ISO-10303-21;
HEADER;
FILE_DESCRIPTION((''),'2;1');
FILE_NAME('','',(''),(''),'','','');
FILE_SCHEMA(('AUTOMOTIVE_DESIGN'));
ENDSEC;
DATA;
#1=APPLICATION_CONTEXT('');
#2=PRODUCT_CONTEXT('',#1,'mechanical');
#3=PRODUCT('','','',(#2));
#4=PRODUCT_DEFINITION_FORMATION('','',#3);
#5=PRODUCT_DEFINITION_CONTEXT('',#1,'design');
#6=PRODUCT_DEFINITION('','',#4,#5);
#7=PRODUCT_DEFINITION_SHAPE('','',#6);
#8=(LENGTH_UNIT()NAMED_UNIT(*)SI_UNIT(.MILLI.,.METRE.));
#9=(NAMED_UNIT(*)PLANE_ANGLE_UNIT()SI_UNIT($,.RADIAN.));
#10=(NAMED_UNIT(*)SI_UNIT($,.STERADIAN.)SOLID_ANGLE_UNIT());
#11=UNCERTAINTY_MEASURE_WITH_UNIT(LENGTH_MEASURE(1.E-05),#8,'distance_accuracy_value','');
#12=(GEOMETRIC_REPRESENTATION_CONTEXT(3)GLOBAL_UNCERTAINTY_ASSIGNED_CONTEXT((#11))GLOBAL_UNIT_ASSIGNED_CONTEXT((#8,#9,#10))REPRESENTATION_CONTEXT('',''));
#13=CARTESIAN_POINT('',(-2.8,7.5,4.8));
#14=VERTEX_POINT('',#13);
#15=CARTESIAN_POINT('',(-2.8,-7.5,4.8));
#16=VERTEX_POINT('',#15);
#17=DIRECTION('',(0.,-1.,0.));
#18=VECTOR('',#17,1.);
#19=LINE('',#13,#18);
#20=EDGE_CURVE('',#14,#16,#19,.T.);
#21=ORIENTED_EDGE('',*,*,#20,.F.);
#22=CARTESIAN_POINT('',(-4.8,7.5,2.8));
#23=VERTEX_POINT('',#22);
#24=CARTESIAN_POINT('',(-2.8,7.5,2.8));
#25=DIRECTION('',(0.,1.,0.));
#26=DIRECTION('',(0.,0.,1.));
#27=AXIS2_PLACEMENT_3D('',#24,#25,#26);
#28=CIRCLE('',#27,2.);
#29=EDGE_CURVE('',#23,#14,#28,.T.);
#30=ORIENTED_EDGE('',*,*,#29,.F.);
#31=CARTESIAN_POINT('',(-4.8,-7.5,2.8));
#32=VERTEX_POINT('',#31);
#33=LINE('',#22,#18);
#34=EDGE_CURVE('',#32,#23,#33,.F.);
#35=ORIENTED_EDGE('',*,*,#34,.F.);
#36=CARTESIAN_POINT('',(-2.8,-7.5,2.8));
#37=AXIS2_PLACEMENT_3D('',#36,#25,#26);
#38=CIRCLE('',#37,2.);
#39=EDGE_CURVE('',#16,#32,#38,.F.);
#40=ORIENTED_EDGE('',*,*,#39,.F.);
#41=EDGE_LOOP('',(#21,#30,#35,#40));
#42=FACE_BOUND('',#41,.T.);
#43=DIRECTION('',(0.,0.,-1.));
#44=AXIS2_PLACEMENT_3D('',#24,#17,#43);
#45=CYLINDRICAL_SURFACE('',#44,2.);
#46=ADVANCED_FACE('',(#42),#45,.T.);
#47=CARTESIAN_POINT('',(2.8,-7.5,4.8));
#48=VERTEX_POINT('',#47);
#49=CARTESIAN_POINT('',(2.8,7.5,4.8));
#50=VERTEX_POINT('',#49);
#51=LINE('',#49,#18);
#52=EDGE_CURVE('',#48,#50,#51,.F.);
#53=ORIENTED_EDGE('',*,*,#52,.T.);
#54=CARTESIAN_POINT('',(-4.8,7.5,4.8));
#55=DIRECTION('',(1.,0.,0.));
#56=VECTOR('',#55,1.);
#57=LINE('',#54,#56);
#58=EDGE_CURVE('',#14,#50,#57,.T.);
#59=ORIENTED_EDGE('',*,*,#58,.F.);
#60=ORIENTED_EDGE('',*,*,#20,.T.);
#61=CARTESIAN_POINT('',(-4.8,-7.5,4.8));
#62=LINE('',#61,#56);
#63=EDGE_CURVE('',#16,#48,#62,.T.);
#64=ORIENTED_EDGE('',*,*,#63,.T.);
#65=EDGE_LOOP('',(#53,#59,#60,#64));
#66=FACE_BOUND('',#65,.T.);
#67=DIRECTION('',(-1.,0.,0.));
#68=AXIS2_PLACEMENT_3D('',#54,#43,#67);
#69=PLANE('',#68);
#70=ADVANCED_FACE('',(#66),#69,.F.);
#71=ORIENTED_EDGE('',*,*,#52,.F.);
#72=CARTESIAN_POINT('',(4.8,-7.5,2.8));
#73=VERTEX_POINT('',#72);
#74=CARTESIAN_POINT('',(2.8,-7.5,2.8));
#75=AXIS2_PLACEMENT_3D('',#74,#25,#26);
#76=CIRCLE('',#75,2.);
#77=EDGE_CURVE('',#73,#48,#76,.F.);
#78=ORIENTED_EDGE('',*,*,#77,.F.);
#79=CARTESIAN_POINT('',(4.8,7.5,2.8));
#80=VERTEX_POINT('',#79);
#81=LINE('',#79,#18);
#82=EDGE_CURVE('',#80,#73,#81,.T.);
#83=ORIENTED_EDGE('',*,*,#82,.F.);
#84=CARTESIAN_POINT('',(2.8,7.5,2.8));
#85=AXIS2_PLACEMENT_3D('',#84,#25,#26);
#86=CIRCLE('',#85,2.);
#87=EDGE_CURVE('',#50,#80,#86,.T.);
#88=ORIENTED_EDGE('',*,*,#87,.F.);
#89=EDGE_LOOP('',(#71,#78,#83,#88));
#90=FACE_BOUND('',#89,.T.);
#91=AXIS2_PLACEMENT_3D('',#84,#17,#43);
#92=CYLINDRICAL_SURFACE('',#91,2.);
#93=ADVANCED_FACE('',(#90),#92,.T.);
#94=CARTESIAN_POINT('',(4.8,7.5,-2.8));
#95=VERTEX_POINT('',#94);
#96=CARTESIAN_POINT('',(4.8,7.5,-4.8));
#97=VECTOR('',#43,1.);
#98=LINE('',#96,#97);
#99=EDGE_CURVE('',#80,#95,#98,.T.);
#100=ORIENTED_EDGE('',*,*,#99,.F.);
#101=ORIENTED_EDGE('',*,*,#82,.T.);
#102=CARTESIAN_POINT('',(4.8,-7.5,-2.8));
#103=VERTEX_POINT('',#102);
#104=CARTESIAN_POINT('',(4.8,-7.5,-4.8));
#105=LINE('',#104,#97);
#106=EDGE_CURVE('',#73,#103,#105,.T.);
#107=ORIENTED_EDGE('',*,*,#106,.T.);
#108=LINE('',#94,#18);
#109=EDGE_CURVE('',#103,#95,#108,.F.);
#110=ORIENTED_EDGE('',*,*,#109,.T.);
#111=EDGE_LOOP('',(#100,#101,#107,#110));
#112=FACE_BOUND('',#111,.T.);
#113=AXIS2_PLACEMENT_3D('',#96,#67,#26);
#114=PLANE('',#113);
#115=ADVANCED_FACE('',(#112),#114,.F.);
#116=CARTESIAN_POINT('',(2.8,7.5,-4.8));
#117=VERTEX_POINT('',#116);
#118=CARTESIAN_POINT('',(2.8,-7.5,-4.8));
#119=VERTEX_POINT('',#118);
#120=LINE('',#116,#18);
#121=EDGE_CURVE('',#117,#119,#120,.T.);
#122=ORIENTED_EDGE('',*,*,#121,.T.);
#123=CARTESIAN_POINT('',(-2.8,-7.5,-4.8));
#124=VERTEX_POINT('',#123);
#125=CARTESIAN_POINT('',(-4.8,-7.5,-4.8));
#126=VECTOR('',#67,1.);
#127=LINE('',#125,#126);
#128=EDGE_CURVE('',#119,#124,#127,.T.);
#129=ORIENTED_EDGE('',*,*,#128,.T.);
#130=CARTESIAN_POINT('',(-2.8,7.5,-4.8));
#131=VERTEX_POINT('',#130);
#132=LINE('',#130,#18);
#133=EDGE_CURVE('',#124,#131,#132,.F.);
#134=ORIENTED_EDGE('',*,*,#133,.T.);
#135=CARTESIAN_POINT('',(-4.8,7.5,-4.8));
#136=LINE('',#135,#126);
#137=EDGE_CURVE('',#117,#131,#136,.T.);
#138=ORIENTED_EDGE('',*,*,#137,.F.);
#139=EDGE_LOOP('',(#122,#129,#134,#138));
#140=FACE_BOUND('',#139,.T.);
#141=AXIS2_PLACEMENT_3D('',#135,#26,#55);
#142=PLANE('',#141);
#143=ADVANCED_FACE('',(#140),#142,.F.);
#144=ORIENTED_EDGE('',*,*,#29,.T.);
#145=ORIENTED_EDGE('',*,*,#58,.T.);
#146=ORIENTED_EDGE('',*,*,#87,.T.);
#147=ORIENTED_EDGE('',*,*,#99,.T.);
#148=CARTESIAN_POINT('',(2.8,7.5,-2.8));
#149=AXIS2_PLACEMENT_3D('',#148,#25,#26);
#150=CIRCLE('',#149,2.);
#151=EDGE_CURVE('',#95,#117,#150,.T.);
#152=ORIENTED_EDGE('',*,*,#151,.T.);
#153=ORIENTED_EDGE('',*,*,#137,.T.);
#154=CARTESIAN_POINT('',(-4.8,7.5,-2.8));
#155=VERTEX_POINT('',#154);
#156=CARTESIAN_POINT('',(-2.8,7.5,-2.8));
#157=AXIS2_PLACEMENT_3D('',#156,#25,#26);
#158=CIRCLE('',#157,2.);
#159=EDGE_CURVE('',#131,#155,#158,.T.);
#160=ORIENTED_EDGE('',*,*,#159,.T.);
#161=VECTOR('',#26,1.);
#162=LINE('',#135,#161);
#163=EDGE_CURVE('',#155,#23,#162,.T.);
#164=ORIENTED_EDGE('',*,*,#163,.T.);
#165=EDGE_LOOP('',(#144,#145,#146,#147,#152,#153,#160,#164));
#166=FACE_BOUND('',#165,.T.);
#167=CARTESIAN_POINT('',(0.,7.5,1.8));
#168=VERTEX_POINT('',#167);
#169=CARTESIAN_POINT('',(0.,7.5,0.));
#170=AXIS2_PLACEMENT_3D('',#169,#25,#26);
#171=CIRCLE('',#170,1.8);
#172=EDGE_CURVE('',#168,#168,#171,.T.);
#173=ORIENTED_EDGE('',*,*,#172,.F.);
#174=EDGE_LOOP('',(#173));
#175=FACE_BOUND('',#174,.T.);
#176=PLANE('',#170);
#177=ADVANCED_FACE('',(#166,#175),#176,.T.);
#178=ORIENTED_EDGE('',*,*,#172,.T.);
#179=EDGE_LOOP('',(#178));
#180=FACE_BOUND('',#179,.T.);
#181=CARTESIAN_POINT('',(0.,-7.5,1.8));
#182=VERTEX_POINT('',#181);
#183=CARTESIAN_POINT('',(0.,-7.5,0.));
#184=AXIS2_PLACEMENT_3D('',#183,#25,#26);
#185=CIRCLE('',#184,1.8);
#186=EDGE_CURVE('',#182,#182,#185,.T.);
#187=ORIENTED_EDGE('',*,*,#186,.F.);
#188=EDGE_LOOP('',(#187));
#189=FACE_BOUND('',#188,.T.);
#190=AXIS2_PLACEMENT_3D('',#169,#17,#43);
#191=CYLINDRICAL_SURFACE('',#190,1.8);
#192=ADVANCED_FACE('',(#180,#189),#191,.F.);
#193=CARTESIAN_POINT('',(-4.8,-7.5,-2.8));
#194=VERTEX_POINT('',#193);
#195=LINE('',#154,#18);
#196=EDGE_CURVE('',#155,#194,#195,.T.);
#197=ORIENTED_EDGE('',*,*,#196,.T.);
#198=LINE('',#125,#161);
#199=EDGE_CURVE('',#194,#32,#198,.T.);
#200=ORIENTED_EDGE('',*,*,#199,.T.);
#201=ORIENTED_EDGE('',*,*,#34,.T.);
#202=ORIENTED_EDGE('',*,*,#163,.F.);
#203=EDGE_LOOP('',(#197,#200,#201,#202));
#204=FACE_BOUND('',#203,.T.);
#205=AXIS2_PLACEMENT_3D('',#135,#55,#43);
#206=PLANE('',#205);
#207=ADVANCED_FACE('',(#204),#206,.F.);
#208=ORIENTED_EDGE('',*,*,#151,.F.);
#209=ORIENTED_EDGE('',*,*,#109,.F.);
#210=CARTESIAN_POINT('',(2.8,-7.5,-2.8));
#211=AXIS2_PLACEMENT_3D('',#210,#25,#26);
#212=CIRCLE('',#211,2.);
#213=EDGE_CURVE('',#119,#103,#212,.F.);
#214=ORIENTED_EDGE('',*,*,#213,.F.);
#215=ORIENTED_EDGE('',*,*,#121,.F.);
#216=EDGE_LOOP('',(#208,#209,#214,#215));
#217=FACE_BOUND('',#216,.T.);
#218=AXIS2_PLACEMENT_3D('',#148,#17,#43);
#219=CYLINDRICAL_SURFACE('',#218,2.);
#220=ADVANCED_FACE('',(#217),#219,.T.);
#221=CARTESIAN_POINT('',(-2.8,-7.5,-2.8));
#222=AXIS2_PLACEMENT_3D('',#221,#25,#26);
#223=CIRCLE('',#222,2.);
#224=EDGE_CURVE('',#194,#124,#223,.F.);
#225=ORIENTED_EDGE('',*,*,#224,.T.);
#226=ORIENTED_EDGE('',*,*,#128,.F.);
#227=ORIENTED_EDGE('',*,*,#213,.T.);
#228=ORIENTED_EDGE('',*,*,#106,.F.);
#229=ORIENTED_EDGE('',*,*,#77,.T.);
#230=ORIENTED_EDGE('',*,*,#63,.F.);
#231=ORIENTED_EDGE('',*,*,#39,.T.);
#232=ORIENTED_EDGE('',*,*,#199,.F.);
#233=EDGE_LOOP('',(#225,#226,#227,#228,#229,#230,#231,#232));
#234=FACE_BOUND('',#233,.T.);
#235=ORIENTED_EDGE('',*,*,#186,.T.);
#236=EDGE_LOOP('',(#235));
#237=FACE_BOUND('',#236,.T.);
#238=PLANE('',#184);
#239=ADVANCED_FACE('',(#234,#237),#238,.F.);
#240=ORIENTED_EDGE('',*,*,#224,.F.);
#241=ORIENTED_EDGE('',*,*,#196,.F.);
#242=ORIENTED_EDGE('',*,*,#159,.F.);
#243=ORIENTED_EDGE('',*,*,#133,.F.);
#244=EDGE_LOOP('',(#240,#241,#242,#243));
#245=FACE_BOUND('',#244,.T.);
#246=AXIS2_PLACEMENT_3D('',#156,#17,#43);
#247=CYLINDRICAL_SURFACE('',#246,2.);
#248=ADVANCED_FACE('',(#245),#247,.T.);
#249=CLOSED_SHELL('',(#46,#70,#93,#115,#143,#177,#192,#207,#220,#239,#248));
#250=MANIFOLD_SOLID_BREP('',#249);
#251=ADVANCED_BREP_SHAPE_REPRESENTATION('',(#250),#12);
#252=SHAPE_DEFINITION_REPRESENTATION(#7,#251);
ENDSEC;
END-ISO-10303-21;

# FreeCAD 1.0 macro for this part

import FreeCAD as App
import Part
import Sketcher

V = App.Vector
Q = App.Units.Quantity


def edges_at(feature, points):
    """Names of the edges that pass closest to the given points."""
    edges = feature.Shape.Edges
    near = lambda p: min(range(len(edges)), key=lambda i: edges[i].distToShape(Part.Vertex(*p))[0])
    return sorted({f"Edge{near(p) + 1}" for p in points})

doc = App.newDocument("Part")
body = doc.addObject("PartDesign::Body", "Body")

sketch1 = body.newObject("Sketcher::SketchObject", "Sketch")
sketch1.AttachmentSupport = (doc.getObject("XZ_Plane"), [""])
sketch1.MapMode = "FlatFace"
sketch1.addGeometry(Part.LineSegment(V(-4.8, -4.8, 0), V(-4.8, 4.8, 0)), False)
sketch1.addGeometry(Part.LineSegment(V(-4.8, 4.8, 0), V(4.8, 4.8, 0)), False)
sketch1.addGeometry(Part.LineSegment(V(4.8, 4.8, 0), V(4.8, -4.8, 0)), False)
sketch1.addGeometry(Part.LineSegment(V(4.8, -4.8, 0), V(-4.8, -4.8, 0)), False)
sketch1.addGeometry(Part.Circle(V(0, 0, 0), V(0, 0, 1), 1.8), False)
sketch1.addConstraint(Sketcher.Constraint("Coincident", 0, 2, 1, 1))
sketch1.addConstraint(Sketcher.Constraint("Coincident", 1, 2, 2, 1))
sketch1.addConstraint(Sketcher.Constraint("Coincident", 2, 2, 3, 1))
sketch1.addConstraint(Sketcher.Constraint("Coincident", 3, 2, 0, 1))
sketch1.addConstraint(Sketcher.Constraint("Vertical", 0))
sketch1.addConstraint(Sketcher.Constraint("Horizontal", 1))
sketch1.addConstraint(Sketcher.Constraint("Vertical", 2))
sketch1.addConstraint(Sketcher.Constraint("Horizontal", 3))
sketch1.addConstraint(Sketcher.Constraint("Coincident", 4, 3, -1, 1))
sketch1.addConstraint(Sketcher.Constraint("Symmetric", 0, 2, 2, 2, -1, 1))
sketch1.addConstraint(Sketcher.Constraint("Equal", 3, 0))
sketch1.addConstraint(Sketcher.Constraint("Diameter", 4, Q("3.6 mm")))
sketch1.addConstraint(Sketcher.Constraint("DistanceX", 1, 1, 1, 2, Q("9.6 mm")))
pad1 = body.newObject("PartDesign::Pad", "Pad")
pad1.Profile = sketch1
pad1.Length = 15
pad1.Midplane = True
doc.recompute()

fillet = body.newObject("PartDesign::Fillet", "Fillet")
fillet.Base = (pad1, edges_at(pad1, [
    (-4.8, 0, -4.8),
    (4.8, 0, -4.8),
    (4.8, 0, 4.8),
    (-4.8, 0, 4.8),
]))
fillet.Radius = 2

doc.recompute()
